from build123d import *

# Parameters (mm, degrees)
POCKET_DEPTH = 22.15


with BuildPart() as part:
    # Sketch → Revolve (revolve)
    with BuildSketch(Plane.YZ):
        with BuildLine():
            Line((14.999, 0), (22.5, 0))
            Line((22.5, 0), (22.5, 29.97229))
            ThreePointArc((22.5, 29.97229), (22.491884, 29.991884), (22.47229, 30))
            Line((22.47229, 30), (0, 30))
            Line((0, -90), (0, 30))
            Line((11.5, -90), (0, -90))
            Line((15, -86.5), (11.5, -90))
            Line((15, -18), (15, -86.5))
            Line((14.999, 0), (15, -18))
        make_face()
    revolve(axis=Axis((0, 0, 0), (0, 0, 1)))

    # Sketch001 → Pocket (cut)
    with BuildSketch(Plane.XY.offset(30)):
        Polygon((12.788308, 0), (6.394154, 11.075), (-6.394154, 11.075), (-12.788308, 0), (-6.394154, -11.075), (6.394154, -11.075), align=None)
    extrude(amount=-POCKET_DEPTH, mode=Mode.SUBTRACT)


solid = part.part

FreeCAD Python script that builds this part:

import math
import FreeCAD as App
import Part
import Sketcher

V = App.Vector
Q = App.Units.Quantity


def add_polygon(sketch, points):
    """Adds a closed chain of lines whose ends are joined by coincident constraints."""
    first, n = sketch.GeometryCount, len(points)
    for a, b in zip(points, points[1:] + points[:1]):
        sketch.addGeometry(Part.LineSegment(App.Vector(*a, 0), App.Vector(*b, 0)), False)
    for i in range(n):
        sketch.addConstraint(Sketcher.Constraint("Coincident", first + i, 2, first + (i + 1) % n, 1))

doc = App.newDocument("Part")
body = doc.addObject("PartDesign::Body", "Body")

sketch1 = body.newObject("Sketcher::SketchObject", "Sketch")
sketch1.AttachmentSupport = (doc.getObject("YZ_Plane"), [""])
sketch1.MapMode = "FlatFace"
sketch1.addGeometry([
    Part.LineSegment(V(14.999, 0, 0), V(22.5, 0, 0)),
    Part.LineSegment(V(22.5, 0, 0), V(22.5, 29.972, 0)),
    Part.ArcOfCircle(Part.Circle(V(22.472, 29.972, 0), V(0, 0, 1), 0.028), math.radians(0), math.radians(90)),
    Part.LineSegment(V(22.472, 30, 0), V(0, 30, 0)),
    Part.LineSegment(V(0, 30, 0), V(0, -90, 0)),
    Part.LineSegment(V(0, -90, 0), V(11.5, -90, 0)),
    Part.LineSegment(V(11.5, -90, 0), V(15, -86.5, 0)),
    Part.LineSegment(V(15, -86.5, 0), V(15, -18, 0)),
    Part.LineSegment(V(15, -18, 0), V(14.999, 0, 0)),
], False)
sketch1.addConstraint([
    Sketcher.Constraint("Coincident", 0, 2, 1, 1),
    Sketcher.Constraint("Coincident", 1, 2, 2, 1),
    Sketcher.Constraint("Coincident", 2, 2, 3, 1),
    Sketcher.Constraint("Coincident", 3, 2, 4, 1),
    Sketcher.Constraint("Coincident", 4, 2, 5, 1),
    Sketcher.Constraint("Coincident", 5, 2, 6, 1),
    Sketcher.Constraint("Coincident", 6, 2, 7, 1),
    Sketcher.Constraint("Coincident", 7, 2, 8, 1),
    Sketcher.Constraint("Coincident", 8, 2, 0, 1),
    Sketcher.Constraint("Horizontal", 0),
    Sketcher.Constraint("Vertical", 1),
    Sketcher.Constraint("Horizontal", 3),
    Sketcher.Constraint("Vertical", 4),
    Sketcher.Constraint("Horizontal", 5),
    Sketcher.Constraint("Vertical", 7),
    Sketcher.Constraint("PointOnObject", 0, 2, -1),
    Sketcher.Constraint("PointOnObject", 3, 2, -2),
    Sketcher.Constraint("Horizontal", 2, 3, 1, 2),
    Sketcher.Constraint("DistanceY", 4, 2, 4, 1, 120.0),
    Sketcher.Constraint("Angle", 6, Q("45 deg")),
    Sketcher.Constraint("Distance", 8, 18.0),
    Sketcher.Constraint("DistanceX", 5, 1, 5, 2, 11.5),
    Sketcher.Constraint("DistanceY", 7, 1, 7, 2, 68.5),
    Sketcher.Constraint("DistanceY", -1, 1, 2, 2, 30.0),
    Sketcher.Constraint("DistanceX", 5, 2, 0, 2, 11.0),
    Sketcher.Constraint("DistanceX", 0, 1, 0, 2, 7.501),
    Sketcher.Constraint("Radius", 2, 0.02771),
    Sketcher.Constraint("DistanceX", 3, 2, 3, 1, 22.47229),
])
revolution = body.newObject("PartDesign::Revolution", "Revolution")
revolution.Profile = sketch1
revolution.ReferenceAxis = (sketch1, ["V_Axis"])
revolution.Angle = 360

sketch2 = body.newObject("Sketcher::SketchObject", "Sketch001")
sketch2.AttachmentSupport = (doc.getObject("XY_Plane"), [""])
sketch2.MapMode = "FlatFace"
sketch2.AttachmentOffset = App.Placement(V(0, 0, 30), App.Rotation())
add_polygon(sketch2, [(13, 0), (6, 11), (-6, 11), (-13, 0), (-6, -11), (6, -11)])
sketch2.addConstraint([
    Sketcher.Constraint("Horizontal", 1),
    Sketcher.Constraint("Horizontal", 4),
    Sketcher.Constraint("Symmetric", 0, 2, 3, 2, -1, 1),
    Sketcher.Constraint("Symmetric", 2, 2, 5, 2, -1, 1),
    Sketcher.Constraint("PointOnObject", 2, 2, -1),
    Sketcher.Constraint("Parallel", 2, 5),
    Sketcher.Constraint("Vertical", 1, 2, 3, 2),
    Sketcher.Constraint("Angle", 0, Q("119.999999 deg")),
    Sketcher.Constraint("DistanceY", 3, 2, 1, 2, 22.15),
    Sketcher.Constraint("DistanceX", 1, 2, 1, 1, 12.788308),
])
pocket1 = body.newObject("PartDesign::Pocket", "Pocket")
pocket1.Profile = sketch2
pocket1.Length = 22.15

doc.recompute()
